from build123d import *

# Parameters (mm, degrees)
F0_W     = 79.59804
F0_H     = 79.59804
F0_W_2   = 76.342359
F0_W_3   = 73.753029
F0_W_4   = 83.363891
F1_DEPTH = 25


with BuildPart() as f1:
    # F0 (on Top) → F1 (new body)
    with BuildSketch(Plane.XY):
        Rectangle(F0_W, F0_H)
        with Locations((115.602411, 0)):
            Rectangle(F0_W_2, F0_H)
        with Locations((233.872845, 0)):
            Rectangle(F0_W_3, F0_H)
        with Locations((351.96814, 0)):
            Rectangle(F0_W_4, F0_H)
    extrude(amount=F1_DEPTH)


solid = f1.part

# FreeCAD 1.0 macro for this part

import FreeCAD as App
import Part
import Sketcher
from FreeCAD import Vector


def add_polygon(sketch, points):
    """Adds a closed chain of lines whose ends are joined by coincident constraints."""
    first, n = sketch.GeometryCount, len(points)
    for a, b in zip(points, points[1:] + points[:1]):
        sketch.addGeometry(Part.LineSegment(App.Vector(*a, 0), App.Vector(*b, 0)), False)
    for i in range(n):
        sketch.addConstraint(Sketcher.Constraint("Coincident", first + i, 2, first + (i + 1) % n, 1))

doc = App.newDocument("Part")
params = doc.addObject("Spreadsheet::Sheet", "Params")
for row, (alias, value) in enumerate([
    ("pad1_length", "25 mm"),
], start=1):
    params.set(f"A{row}", alias)
    params.set(f"B{row}", "=" + value)
    params.setAlias(f"B{row}", alias)

body = doc.addObject("PartDesign::Body", "Body")
body.AllowCompound = True

# Sketch on XY plane
sketch1 = doc.addObject("Sketcher::SketchObject", "Sketch")
body.addObject(sketch1)
sketch1.AttachmentSupport = (doc.XY_Plane, [""])
sketch1.MapMode = "FlatFace"
add_polygon(sketch1, [(-40, 40), (-40, -40), (40, -40), (40, 40)])  # lines 0-3
add_polygon(sketch1, [(77, 40), (77, -40), (154, -40), (154, 40)])  # lines 4-7
add_polygon(sketch1, [(197, 40), (197, -40), (271, -40), (271, 40)])  # lines 8-11
add_polygon(sketch1, [(310, 40), (310, -40), (394, -40), (394, 40)])  # lines 12-15
sketch1.addConstraint([
    Sketcher.Constraint("Vertical", 0),
    Sketcher.Constraint("Horizontal", 1),
    Sketcher.Constraint("Vertical", 2),
    Sketcher.Constraint("Horizontal", 3),
    Sketcher.Constraint("Vertical", 4),
    Sketcher.Constraint("Horizontal", 5),
    Sketcher.Constraint("Vertical", 6),
    Sketcher.Constraint("Horizontal", 7),
    Sketcher.Constraint("Vertical", 8),
    Sketcher.Constraint("Horizontal", 9),
    Sketcher.Constraint("Vertical", 10),
    Sketcher.Constraint("Horizontal", 11),
    Sketcher.Constraint("Vertical", 12),
    Sketcher.Constraint("Horizontal", 13),
    Sketcher.Constraint("Vertical", 14),
    Sketcher.Constraint("Horizontal", 15),
    Sketcher.Constraint("Symmetric", 0, 2, 2, 2, -1, 1),
    Sketcher.Constraint("Horizontal", 1, 2, 4, 2),
    Sketcher.Constraint("Horizontal", 3, 2, 6, 2),
    Sketcher.Constraint("Horizontal", 5, 2, 8, 2),
    Sketcher.Constraint("Horizontal", 7, 2, 10, 2),
    Sketcher.Constraint("Horizontal", 9, 2, 12, 2),
    Sketcher.Constraint("Horizontal", 11, 2, 14, 2),
    Sketcher.Constraint("Equal", 3, 0),
    Sketcher.Constraint("DistanceX", 1, 1, 1, 2, 79.59804),
    Sketcher.Constraint("DistanceX", 5, 1, 5, 2, 76.342359),
    Sketcher.Constraint("DistanceX", 9, 1, 9, 2, 73.753029),
    Sketcher.Constraint("DistanceX", 13, 1, 13, 2, 83.363891),
    Sketcher.Constraint("DistanceX", 4, 2, 8, 2, 119.565099),
    Sketcher.Constraint("DistanceX", -1, 1, 4, 2, 77.431231),
    Sketcher.Constraint("DistanceX", -1, 1, 12, 2, 310.286195),
])
pad1 = doc.addObject("PartDesign::Pad", "Pad")
body.addObject(pad1)
pad1.Profile = sketch1
pad1.setExpression("Length", "Params.pad1_length")

doc.recompute()
